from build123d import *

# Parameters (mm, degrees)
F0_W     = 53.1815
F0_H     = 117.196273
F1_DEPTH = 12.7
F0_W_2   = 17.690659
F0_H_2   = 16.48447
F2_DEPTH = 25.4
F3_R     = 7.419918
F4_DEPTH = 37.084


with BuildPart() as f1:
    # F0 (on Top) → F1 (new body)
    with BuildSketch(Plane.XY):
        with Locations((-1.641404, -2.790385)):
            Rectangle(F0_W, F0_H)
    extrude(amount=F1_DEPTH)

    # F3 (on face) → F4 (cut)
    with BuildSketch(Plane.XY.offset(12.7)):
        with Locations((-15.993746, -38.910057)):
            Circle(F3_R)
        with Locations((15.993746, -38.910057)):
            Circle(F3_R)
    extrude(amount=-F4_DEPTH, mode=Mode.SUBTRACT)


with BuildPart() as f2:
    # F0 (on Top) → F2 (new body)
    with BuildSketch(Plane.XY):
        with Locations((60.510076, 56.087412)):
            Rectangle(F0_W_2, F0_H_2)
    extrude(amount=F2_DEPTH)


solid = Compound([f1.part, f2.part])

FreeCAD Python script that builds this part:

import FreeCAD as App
import Part
import Sketcher
from FreeCAD import Vector
Q = App.Units.Quantity


def add_polygon(sketch, points):
    """Adds a closed chain of lines whose ends are joined by coincident constraints."""
    first, n = sketch.GeometryCount, len(points)
    for a, b in zip(points, points[1:] + points[:1]):
        sketch.addGeometry(Part.LineSegment(App.Vector(*a, 0), App.Vector(*b, 0)), False)
    for i in range(n):
        sketch.addConstraint(Sketcher.Constraint("Coincident", first + i, 2, first + (i + 1) % n, 1))

doc = App.newDocument("Part")
body = doc.addObject("PartDesign::Body", "Body")

# Sketch on XY plane
sketch1 = body.newObject("Sketcher::SketchObject", "Sketch")
sketch1.AttachmentSupport = (doc.getObject("XY_Plane"), [""])
sketch1.MapMode = "FlatFace"
add_polygon(sketch1, [(-28.232154, 55.807752), (-28.232154, -61.388522), (24.949346, -61.388522), (24.949346, 55.807752)])  # lines 0-3
sketch1.addConstraint(Sketcher.Constraint("Vertical", 0))
sketch1.addConstraint(Sketcher.Constraint("Horizontal", 1))
sketch1.addConstraint(Sketcher.Constraint("Vertical", 2))
sketch1.addConstraint(Sketcher.Constraint("Horizontal", 3))
sketch1.addConstraint(Sketcher.Constraint("DistanceX", 1, 1, 1, 2, Q("53.1815 mm")))
sketch1.addConstraint(Sketcher.Constraint("DistanceY", 0, 2, 0, 1, Q("117.196273 mm")))
sketch1.addConstraint(Sketcher.Constraint("DistanceY", 0, 2, -1, 1, Q("61.388522 mm")))
sketch1.addConstraint(Sketcher.Constraint("DistanceX", 0, 2, -1, 1, Q("28.232154 mm")))
pad1 = body.newObject("PartDesign::Pad", "Pad")
pad1.Profile = sketch1
pad1.Length = Q("0.5 in")

# Sketch on XY plane
sketch2 = body.newObject("Sketcher::SketchObject", "Sketch001")
sketch2.AttachmentSupport = (doc.getObject("XY_Plane"), [""])
sketch2.MapMode = "FlatFace"
sketch2.AttachmentOffset = App.Placement(Vector(0, 0, 0.5 * 25.4), App.Rotation())
sketch2.addGeometry(Part.Circle(Vector(-15.993746, -38.910057, 0), Vector(0, 0, 1), 7.419918), False)
sketch2.addGeometry(Part.Circle(Vector(15.993746, -38.910057, 0), Vector(0, 0, 1), 7.419918), False)
sketch2.addConstraint(Sketcher.Constraint("Equal", 0, 1))
sketch2.addConstraint(Sketcher.Constraint("Symmetric", 0, 3, 1, 3, -2))
sketch2.addConstraint(Sketcher.Constraint("Diameter", 0, Q("14.839836 mm")))
sketch2.addConstraint(Sketcher.Constraint("DistanceX", 0, 3, 1, 3, Q("31.987492 mm")))
sketch2.addConstraint(Sketcher.Constraint("DistanceY", 0, 3, -1, 1, Q("38.910057 mm")))
pocket1 = body.newObject("PartDesign::Pocket", "Pocket")
pocket1.Profile = sketch2
pocket1.Length = Q("1.46 in")
body2 = doc.addObject("PartDesign::Body", "Body001")

# Sketch on XY plane
sketch3 = body2.newObject("Sketcher::SketchObject", "Sketch002")
sketch3.AttachmentSupport = (doc.getObject("XY_Plane001"), [""])
sketch3.MapMode = "FlatFace"
add_polygon(sketch3, [(51.664746, 64.329647), (51.664746, 47.845177), (69.355406, 47.845177), (69.355406, 64.329647)])  # lines 0-3
sketch3.addConstraint(Sketcher.Constraint("Vertical", 0))
sketch3.addConstraint(Sketcher.Constraint("Horizontal", 1))
sketch3.addConstraint(Sketcher.Constraint("Vertical", 2))
sketch3.addConstraint(Sketcher.Constraint("Horizontal", 3))
sketch3.addConstraint(Sketcher.Constraint("DistanceX", 1, 1, 1, 2, Q("17.690659 mm")))
sketch3.addConstraint(Sketcher.Constraint("DistanceY", 0, 2, 0, 1, Q("16.48447 mm")))
sketch3.addConstraint(Sketcher.Constraint("DistanceX", -1, 1, 0, 2, Q("51.664746 mm")))
sketch3.addConstraint(Sketcher.Constraint("DistanceY", -1, 1, 0, 2, Q("47.845177 mm")))
pad2 = body2.newObject("PartDesign::Pad", "Pad001")
pad2.Profile = sketch3
pad2.Length = Q("1 in")

doc.recompute()
